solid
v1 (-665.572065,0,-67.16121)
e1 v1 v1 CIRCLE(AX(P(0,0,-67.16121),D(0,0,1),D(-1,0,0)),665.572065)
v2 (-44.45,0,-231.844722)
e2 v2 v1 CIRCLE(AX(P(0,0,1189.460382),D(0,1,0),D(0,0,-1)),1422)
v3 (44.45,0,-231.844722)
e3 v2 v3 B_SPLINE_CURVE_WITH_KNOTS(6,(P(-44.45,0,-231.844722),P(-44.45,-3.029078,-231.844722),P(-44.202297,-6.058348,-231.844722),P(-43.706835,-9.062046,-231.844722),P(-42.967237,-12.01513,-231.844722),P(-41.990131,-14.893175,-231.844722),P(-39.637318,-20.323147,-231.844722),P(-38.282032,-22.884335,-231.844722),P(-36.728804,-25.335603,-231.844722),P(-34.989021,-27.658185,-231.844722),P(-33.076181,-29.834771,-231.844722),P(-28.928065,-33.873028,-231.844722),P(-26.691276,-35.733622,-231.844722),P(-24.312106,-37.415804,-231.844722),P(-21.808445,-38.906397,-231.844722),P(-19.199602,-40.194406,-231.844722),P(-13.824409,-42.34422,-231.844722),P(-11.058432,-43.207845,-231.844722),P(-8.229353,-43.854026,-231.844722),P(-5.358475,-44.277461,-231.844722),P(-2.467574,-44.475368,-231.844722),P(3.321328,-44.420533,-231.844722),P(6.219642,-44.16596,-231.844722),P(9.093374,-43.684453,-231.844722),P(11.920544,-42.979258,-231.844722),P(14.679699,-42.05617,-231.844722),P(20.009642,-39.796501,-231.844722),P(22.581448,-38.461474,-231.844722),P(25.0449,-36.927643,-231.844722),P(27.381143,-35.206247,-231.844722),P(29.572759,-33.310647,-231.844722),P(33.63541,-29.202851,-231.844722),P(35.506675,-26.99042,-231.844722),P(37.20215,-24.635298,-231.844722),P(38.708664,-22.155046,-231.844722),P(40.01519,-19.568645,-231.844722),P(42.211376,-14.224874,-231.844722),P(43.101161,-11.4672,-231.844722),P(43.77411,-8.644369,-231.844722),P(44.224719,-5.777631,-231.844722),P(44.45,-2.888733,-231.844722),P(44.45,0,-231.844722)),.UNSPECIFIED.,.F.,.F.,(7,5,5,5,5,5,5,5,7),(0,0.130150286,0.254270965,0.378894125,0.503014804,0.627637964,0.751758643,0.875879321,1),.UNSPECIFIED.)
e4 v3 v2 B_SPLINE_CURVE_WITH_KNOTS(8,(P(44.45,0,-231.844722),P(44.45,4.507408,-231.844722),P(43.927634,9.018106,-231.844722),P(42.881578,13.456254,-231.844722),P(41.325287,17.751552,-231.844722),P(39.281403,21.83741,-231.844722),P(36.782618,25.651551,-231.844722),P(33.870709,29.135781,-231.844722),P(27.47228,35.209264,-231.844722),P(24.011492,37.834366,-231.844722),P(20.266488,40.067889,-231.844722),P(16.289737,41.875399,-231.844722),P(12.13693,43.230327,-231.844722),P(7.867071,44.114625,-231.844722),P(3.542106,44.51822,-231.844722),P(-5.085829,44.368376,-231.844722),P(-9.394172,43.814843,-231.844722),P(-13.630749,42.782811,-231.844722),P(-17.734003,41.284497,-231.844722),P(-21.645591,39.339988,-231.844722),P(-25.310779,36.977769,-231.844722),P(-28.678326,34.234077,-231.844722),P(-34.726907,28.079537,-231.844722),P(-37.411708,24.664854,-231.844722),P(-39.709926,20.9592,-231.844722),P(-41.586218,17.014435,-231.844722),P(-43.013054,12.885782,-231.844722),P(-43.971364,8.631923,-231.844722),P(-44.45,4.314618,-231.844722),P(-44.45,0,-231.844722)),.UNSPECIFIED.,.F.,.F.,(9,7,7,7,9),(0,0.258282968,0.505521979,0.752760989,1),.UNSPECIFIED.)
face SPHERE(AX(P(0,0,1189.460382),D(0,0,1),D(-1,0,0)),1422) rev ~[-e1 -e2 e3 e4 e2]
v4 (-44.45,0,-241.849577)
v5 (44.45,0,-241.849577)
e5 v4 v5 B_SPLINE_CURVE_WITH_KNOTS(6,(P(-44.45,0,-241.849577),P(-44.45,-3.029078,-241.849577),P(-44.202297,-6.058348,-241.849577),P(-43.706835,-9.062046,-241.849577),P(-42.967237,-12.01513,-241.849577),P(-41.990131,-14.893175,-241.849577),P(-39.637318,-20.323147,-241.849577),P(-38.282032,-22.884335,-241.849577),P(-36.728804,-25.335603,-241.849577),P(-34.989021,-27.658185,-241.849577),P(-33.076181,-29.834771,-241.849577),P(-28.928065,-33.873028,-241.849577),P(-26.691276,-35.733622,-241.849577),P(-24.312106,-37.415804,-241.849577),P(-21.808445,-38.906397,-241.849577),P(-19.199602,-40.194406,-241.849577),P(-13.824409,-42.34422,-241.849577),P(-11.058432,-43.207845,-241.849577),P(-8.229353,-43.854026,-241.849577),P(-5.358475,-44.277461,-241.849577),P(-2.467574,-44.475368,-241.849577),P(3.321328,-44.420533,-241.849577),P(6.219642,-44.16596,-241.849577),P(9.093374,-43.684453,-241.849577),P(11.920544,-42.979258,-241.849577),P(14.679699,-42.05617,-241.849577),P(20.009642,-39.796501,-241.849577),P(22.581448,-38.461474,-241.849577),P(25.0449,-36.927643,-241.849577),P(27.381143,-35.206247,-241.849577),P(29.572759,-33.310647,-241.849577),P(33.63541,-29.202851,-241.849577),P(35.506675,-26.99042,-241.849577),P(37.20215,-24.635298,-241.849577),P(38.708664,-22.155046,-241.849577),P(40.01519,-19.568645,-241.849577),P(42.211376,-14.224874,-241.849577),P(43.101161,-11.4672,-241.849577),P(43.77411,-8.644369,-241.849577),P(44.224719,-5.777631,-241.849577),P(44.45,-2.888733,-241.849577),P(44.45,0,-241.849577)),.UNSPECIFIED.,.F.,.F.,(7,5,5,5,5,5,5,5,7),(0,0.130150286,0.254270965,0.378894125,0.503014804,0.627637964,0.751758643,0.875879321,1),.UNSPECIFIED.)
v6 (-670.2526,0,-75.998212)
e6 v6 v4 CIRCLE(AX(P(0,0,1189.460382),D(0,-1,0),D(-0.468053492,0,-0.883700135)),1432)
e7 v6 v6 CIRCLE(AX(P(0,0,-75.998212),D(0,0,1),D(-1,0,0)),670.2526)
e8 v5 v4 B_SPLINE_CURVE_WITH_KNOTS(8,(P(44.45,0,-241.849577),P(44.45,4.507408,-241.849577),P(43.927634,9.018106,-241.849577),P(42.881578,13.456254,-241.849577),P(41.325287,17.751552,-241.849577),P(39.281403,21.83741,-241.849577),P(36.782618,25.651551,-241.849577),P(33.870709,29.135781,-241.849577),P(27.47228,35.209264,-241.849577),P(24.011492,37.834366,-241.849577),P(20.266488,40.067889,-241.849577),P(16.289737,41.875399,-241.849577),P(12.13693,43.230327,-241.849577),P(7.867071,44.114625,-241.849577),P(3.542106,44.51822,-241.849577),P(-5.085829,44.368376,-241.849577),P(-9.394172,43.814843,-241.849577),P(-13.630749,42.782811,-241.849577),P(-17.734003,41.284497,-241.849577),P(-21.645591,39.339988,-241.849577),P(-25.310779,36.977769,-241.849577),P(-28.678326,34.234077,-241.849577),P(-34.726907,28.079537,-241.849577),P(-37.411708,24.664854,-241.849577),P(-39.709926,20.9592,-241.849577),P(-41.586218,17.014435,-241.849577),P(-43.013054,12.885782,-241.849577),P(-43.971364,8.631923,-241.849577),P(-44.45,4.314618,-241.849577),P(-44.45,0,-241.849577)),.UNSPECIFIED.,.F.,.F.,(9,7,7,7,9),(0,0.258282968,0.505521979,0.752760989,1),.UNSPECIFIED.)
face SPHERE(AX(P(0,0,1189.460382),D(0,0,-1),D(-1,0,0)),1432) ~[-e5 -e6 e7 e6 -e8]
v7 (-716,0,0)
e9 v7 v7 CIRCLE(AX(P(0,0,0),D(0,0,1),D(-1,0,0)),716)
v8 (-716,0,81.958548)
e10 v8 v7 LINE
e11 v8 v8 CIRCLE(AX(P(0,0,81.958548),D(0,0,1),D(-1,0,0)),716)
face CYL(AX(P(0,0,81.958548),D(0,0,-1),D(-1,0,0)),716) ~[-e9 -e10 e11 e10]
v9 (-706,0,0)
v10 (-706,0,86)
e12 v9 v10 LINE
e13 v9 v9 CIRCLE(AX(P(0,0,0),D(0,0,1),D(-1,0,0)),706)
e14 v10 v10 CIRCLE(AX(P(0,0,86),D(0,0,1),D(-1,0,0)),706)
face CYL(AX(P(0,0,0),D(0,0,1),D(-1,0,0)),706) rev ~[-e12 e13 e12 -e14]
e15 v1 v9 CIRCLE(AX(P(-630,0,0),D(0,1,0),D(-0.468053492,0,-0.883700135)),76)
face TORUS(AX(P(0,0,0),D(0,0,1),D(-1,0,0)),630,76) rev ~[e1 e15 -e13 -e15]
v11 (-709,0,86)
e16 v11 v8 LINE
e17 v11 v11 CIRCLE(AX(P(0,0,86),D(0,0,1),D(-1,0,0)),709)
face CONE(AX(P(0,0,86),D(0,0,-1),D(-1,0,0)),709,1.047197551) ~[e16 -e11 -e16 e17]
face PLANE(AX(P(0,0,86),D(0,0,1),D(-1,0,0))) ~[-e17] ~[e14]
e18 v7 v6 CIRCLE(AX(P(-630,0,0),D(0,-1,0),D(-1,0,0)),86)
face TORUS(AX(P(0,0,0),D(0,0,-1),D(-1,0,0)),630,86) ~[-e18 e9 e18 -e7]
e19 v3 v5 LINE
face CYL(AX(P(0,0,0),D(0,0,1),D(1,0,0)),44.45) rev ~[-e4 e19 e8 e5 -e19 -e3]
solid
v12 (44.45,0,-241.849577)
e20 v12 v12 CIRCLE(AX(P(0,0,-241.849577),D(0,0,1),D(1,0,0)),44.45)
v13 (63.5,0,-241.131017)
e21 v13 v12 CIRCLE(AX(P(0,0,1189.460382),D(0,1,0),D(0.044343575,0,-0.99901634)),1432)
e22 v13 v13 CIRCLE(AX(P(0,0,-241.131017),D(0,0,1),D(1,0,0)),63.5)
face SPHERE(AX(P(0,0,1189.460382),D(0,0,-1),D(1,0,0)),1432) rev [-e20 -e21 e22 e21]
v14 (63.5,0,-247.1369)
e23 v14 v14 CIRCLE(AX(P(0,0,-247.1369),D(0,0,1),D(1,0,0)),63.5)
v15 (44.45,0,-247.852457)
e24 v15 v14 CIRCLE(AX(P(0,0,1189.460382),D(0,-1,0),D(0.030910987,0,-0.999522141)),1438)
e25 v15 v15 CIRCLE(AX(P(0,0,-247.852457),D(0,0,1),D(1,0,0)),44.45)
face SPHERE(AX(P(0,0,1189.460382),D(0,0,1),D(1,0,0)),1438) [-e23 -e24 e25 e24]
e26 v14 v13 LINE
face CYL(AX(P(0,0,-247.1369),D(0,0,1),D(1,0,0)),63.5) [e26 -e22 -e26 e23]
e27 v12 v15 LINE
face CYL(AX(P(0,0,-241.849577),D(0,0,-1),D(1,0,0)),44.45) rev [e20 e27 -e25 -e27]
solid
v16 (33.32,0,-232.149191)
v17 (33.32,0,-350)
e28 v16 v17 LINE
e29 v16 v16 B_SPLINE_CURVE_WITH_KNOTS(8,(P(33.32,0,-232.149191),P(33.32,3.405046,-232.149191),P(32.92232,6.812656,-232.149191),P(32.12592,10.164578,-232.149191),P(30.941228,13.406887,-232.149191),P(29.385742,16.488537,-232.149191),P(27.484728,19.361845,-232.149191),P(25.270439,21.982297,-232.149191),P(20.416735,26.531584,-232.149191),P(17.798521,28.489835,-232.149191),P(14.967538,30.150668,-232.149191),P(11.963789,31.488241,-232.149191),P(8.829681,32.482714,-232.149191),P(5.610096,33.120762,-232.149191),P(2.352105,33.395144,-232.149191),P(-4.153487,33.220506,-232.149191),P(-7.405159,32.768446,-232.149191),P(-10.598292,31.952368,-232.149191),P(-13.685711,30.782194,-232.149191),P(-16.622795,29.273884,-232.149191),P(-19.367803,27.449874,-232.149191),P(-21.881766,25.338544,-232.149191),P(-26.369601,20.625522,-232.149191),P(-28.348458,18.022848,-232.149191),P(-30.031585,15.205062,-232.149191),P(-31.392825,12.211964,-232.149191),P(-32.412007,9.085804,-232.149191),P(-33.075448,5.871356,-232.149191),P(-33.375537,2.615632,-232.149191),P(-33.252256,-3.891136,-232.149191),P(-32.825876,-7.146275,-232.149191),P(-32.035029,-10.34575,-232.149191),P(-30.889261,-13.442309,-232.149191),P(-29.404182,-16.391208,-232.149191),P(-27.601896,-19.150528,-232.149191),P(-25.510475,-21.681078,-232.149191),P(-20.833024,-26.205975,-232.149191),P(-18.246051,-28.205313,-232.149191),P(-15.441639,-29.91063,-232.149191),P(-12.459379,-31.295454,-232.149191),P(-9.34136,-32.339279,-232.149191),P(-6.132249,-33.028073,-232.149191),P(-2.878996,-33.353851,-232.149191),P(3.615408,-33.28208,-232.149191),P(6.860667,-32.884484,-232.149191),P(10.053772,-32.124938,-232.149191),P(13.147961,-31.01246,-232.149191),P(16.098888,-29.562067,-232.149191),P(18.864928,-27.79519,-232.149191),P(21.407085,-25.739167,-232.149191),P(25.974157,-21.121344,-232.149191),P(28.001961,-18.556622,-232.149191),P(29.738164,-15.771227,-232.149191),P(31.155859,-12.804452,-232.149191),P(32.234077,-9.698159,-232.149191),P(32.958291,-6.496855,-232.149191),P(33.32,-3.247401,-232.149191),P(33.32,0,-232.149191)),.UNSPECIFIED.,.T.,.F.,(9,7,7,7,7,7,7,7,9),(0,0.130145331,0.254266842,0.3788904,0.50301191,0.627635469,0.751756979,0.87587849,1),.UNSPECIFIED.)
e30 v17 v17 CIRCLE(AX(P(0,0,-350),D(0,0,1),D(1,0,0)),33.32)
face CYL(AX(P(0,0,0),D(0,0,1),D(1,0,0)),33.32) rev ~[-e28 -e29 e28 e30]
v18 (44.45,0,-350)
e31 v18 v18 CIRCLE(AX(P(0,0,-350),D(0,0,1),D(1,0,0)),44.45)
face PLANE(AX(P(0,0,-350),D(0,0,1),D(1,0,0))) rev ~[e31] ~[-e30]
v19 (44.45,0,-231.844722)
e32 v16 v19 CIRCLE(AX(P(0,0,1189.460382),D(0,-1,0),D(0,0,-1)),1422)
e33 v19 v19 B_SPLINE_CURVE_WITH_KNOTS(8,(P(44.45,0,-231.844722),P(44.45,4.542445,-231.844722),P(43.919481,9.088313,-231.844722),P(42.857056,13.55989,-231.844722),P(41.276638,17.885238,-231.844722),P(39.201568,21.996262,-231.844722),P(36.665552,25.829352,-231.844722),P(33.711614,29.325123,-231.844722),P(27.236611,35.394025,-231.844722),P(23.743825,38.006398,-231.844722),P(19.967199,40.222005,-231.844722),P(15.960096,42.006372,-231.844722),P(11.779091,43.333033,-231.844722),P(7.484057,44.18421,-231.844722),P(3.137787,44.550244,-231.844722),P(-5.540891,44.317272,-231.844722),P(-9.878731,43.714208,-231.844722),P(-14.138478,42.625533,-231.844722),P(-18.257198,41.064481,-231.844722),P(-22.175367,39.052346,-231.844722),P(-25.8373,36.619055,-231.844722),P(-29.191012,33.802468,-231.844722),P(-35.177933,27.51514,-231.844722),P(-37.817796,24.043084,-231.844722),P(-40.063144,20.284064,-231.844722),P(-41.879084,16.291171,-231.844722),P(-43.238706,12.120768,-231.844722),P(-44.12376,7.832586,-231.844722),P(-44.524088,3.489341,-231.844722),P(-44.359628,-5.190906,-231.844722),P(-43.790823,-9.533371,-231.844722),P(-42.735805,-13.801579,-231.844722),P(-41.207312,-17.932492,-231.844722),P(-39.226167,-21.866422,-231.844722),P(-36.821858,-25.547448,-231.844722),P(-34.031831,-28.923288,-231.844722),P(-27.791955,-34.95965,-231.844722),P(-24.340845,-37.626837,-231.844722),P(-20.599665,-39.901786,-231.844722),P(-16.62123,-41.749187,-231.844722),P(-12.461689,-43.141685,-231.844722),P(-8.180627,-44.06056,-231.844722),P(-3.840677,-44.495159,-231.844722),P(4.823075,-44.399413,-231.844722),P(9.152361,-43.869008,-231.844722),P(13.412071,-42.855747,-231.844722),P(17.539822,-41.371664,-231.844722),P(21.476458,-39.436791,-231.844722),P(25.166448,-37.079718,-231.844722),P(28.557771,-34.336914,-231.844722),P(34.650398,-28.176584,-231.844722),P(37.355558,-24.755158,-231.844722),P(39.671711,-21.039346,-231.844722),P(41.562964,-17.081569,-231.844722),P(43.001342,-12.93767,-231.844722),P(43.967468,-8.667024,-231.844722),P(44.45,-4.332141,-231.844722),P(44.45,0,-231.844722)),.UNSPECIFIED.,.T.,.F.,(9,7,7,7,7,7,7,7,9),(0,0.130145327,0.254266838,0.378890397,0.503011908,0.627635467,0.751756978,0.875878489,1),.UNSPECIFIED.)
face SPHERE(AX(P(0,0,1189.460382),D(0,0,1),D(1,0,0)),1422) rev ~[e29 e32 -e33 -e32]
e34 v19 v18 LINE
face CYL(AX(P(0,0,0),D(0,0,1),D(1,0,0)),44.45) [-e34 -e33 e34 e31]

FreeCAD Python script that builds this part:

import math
import FreeCAD as App
import Part
import Sketcher

V = App.Vector
Q = App.Units.Quantity

doc = App.newDocument("Part")
body = doc.addObject("PartDesign::Body", "Body")

# Sketch on XZ plane
sketch1 = body.newObject("Sketcher::SketchObject", "Sketch")
sketch1.AttachmentSupport = (doc.getObject("XZ_Plane"), [""])
sketch1.MapMode = "FlatFace"
sketch1.addGeometry(Part.LineSegment(V(-716, 82, 0), V(-716, 0, 0)), False)
sketch1.addGeometry(Part.ArcOfCircle(Part.Circle(V(-630, 0, 0), V(0, 0, 1), 86), math.radians(180), math.radians(242)), False)
sketch1.addGeometry(Part.ArcOfCircle(Part.Circle(V(0, 1189.5, 0), V(0, 0, 1), 1432), math.radians(-118), math.radians(-90)), False)
sketch1.addGeometry(Part.LineSegment(V(0, -242.5, 0), V(0, -232.5, 0)), False)
sketch1.addGeometry(Part.ArcOfCircle(Part.Circle(V(0, 1189.5, 0), V(0, 0, 1), 1422), math.radians(-118), math.radians(-90)), False)
sketch1.addGeometry(Part.ArcOfCircle(Part.Circle(V(-630, 0, 0), V(0, 0, 1), 76), math.radians(180), math.radians(242)), False)
sketch1.addGeometry(Part.LineSegment(V(-706, 0, 0), V(-706, 86, 0)), False)
sketch1.addGeometry(Part.LineSegment(V(-706, 86, 0), V(-709, 86, 0)), False)
sketch1.addGeometry(Part.LineSegment(V(-709, 86, 0), V(-716, 82, 0)), False)
sketch1.addConstraint(Sketcher.Constraint("Tangent", 0, 2, 1, 1))
sketch1.addConstraint(Sketcher.Constraint("Tangent", 1, 2, 2, 1))
sketch1.addConstraint(Sketcher.Constraint("Coincident", 2, 2, 3, 1))
sketch1.addConstraint(Sketcher.Constraint("Coincident", 3, 2, 4, 2))
sketch1.addConstraint(Sketcher.Constraint("Tangent", 4, 1, 5, 2))
sketch1.addConstraint(Sketcher.Constraint("Tangent", 5, 1, 6, 1))
sketch1.addConstraint(Sketcher.Constraint("Coincident", 6, 2, 7, 1))
sketch1.addConstraint(Sketcher.Constraint("Coincident", 7, 2, 8, 1))
sketch1.addConstraint(Sketcher.Constraint("Coincident", 8, 2, 0, 1))
sketch1.addConstraint(Sketcher.Constraint("Vertical", 0))
sketch1.addConstraint(Sketcher.Constraint("Vertical", 3))
sketch1.addConstraint(Sketcher.Constraint("Vertical", 6))
sketch1.addConstraint(Sketcher.Constraint("Horizontal", 7))
sketch1.addConstraint(Sketcher.Constraint("Coincident", 4, 3, 2, 3))
sketch1.addConstraint(Sketcher.Constraint("Coincident", 5, 3, 1, 3))
sketch1.addConstraint(Sketcher.Constraint("PointOnObject", 1, 3, -1))
sketch1.addConstraint(Sketcher.Constraint("PointOnObject", 2, 3, -2))
sketch1.addConstraint(Sketcher.Constraint("PointOnObject", 3, 2, -2))
sketch1.addConstraint(Sketcher.Constraint("Radius", 1, Q("86 mm")))
sketch1.addConstraint(Sketcher.Constraint("Radius", 2, Q("1432 mm")))
sketch1.addConstraint(Sketcher.Constraint("Radius", 4, Q("1422 mm")))
sketch1.addConstraint(Sketcher.Constraint("DistanceX", 7, 2, 7, 1, Q("3 mm")))
sketch1.addConstraint(Sketcher.Constraint("DistanceY", 6, 1, 6, 2, Q("86 mm")))
sketch1.addConstraint(Sketcher.Constraint("Angle", 8, Q("-150 deg")))
sketch1.addConstraint(Sketcher.Constraint("DistanceX", 1, 3, -1, 1, Q("630 mm")))
revolution = body.newObject("PartDesign::Revolution", "Revolution")
revolution.Profile = sketch1
revolution.ReferenceAxis = (sketch1, ["V_Axis"])
revolution.Angle = 360

# Sketch on XY plane
sketch2 = body.newObject("Sketcher::SketchObject", "Sketch001")
sketch2.AttachmentSupport = (doc.getObject("XY_Plane"), [""])
sketch2.MapMode = "FlatFace"
sketch2.addGeometry(Part.Circle(V(0, 0, 0), V(0, 0, 1), 44), False)
sketch2.addConstraint(Sketcher.Constraint("Coincident", 0, 3, -1, 1))
sketch2.addConstraint(Sketcher.Constraint("Diameter", 0, Q("88.9 mm")))
pocket1 = body.newObject("PartDesign::Pocket", "Pocket")
pocket1.Profile = sketch2
pocket1.Type = "ThroughAll"
body2 = doc.addObject("PartDesign::Body", "Body001")

# Sketch on XZ plane
sketch3 = body2.newObject("Sketcher::SketchObject", "Sketch002")
sketch3.AttachmentSupport = (doc.getObject("XZ_Plane001"), [""])
sketch3.MapMode = "FlatFace"
sketch3.addGeometry(Part.ArcOfCircle(Part.Circle(V(0, 1189, 0), V(0, 0, 1), 1432), math.radians(-88.22), math.radians(-87.46)), False)
sketch3.addGeometry(Part.LineSegment(V(44, -242, 0), V(44, -248, 0)), False)
sketch3.addGeometry(Part.ArcOfCircle(Part.Circle(V(0, 1189, 0), V(0, 0, 1), 1438), math.radians(-88.23), math.radians(-87.47)), False)
sketch3.addGeometry(Part.LineSegment(V(64, -247, 0), V(64, -241, 0)), False)
sketch3.addConstraint(Sketcher.Constraint("Coincident", 0, 1, 1, 1))
sketch3.addConstraint(Sketcher.Constraint("Coincident", 1, 2, 2, 1))
sketch3.addConstraint(Sketcher.Constraint("Coincident", 2, 2, 3, 1))
sketch3.addConstraint(Sketcher.Constraint("Coincident", 3, 2, 0, 2))
sketch3.addConstraint(Sketcher.Constraint("Vertical", 1))
sketch3.addConstraint(Sketcher.Constraint("Vertical", 3))
sketch3.addConstraint(Sketcher.Constraint("Coincident", 2, 3, 0, 3))
sketch3.addConstraint(Sketcher.Constraint("PointOnObject", 0, 3, -2))
sketch3.addConstraint(Sketcher.Constraint("Radius", 0, Q("1432 mm")))
sketch3.addConstraint(Sketcher.Constraint("Radius", 2, Q("1438 mm")))
sketch3.addConstraint(Sketcher.Constraint("DistanceX", -1, 1, 3, 2, Q("63.5 mm")))
sketch3.addConstraint(Sketcher.Constraint("DistanceX", -1, 1, 1, 2, Q("44.45 mm")))
sketch3.addConstraint(Sketcher.Constraint("DistanceY", 2, 2, -1, 1, Q("247.1369 mm")))
revolution2 = body2.newObject("PartDesign::Revolution", "Revolution001")
revolution2.Profile = sketch3
revolution2.ReferenceAxis = (sketch3, ["V_Axis"])
revolution2.Angle = 360
body3 = doc.addObject("PartDesign::Body", "Body002")

# Sketch on XY plane
sketch4 = body3.newObject("Sketcher::SketchObject", "Sketch003")
sketch4.AttachmentSupport = (doc.getObject("XY_Plane002"), [""])
sketch4.MapMode = "FlatFace"
sketch4.addGeometry(Part.Circle(V(0, 0, 0), V(0, 0, 1), 44), False)
sketch4.addGeometry(Part.Circle(V(0, 0, 0), V(0, 0, 1), 33), False)
sketch4.addConstraint(Sketcher.Constraint("Coincident", 0, 3, -1, 1))
sketch4.addConstraint(Sketcher.Constraint("Coincident", 1, 3, -1, 1))
sketch4.addConstraint(Sketcher.Constraint("Diameter", 0, Q("88.9 mm")))
sketch4.addConstraint(Sketcher.Constraint("Diameter", 1, Q("66.64 mm")))
pad1 = body3.newObject("PartDesign::Pad", "Pad")
pad1.Profile = sketch4
pad1.Length = 350
pad1.Reversed = True

# Sketch on XZ plane
sketch5 = body3.newObject("Sketcher::SketchObject", "Sketch004")
sketch5.AttachmentSupport = (doc.getObject("XZ_Plane002"), [""])
sketch5.MapMode = "FlatFace"
sketch5.addGeometry(Part.LineSegment(V(0, 0, 0), V(0, -233, 0)), False)
sketch5.addGeometry(Part.ArcOfCircle(Part.Circle(V(0, 1189, 0), V(0, 0, 1), 1422), math.radians(-90), math.radians(-62)), False)
sketch5.addGeometry(Part.ArcOfCircle(Part.Circle(V(630, 0, 0), V(0, 0, 1), 76), math.radians(-62), math.radians(0)), False)
sketch5.addGeometry(Part.LineSegment(V(706, 0, 0), V(0, 0, 0)), False)
sketch5.addConstraint(Sketcher.Constraint("Coincident", 0, 2, 1, 1))
sketch5.addConstraint(Sketcher.Constraint("Tangent", 1, 2, 2, 1))
sketch5.addConstraint(Sketcher.Constraint("Coincident", 2, 2, 3, 1))
sketch5.addConstraint(Sketcher.Constraint("Coincident", 3, 2, 0, 1))
sketch5.addConstraint(Sketcher.Constraint("Vertical", 0))
sketch5.addConstraint(Sketcher.Constraint("Horizontal", 3))
sketch5.addConstraint(Sketcher.Constraint("Coincident", 3, 2, -1, 1))
sketch5.addConstraint(Sketcher.Constraint("PointOnObject", 1, 3, -2))
sketch5.addConstraint(Sketcher.Constraint("PointOnObject", 2, 3, -1))
sketch5.addConstraint(Sketcher.Constraint("Radius", 1, Q("1422 mm")))
sketch5.addConstraint(Sketcher.Constraint("Radius", 2, Q("76 mm")))
sketch5.addConstraint(Sketcher.Constraint("DistanceX", 3, 2, 3, 1, Q("706 mm")))
groove = body3.newObject("PartDesign::Groove", "Groove")
groove.Profile = sketch5
groove.ReferenceAxis = (sketch5, ["V_Axis"])
groove.Angle = 360

doc.recompute()
